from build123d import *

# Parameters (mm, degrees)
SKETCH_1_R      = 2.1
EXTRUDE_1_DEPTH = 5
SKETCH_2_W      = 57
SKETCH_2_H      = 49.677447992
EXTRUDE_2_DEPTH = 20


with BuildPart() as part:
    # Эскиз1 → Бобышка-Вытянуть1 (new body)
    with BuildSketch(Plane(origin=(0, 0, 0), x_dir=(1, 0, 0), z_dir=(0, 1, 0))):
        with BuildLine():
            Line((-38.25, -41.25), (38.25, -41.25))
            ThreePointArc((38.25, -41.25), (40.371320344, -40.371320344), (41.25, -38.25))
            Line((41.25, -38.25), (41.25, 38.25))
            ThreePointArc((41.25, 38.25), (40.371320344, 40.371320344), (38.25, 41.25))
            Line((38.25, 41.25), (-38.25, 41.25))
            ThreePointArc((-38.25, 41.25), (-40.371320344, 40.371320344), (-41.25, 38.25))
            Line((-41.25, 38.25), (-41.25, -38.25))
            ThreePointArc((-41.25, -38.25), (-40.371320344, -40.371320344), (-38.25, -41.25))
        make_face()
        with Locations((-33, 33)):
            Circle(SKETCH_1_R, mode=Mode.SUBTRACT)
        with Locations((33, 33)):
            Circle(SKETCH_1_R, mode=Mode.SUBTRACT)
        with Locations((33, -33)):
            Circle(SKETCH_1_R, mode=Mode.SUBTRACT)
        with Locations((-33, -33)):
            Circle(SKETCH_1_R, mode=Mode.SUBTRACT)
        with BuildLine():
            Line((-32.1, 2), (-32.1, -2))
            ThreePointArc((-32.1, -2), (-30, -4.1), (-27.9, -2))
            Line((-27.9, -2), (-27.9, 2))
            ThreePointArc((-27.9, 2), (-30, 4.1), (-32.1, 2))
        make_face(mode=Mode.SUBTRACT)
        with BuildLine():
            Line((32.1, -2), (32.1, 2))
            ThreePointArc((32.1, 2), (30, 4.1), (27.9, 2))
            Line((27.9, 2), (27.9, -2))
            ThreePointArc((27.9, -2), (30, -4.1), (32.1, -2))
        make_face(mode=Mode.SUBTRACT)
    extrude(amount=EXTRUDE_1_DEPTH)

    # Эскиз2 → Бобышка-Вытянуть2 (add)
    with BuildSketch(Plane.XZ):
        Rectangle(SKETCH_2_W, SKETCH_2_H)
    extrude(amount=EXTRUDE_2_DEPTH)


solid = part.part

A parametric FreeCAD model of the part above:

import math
import FreeCAD as App
import Part
import Sketcher

V = App.Vector

doc = App.newDocument("Part")
body = doc.addObject("PartDesign::Body", "Body")

# Sketch on XZ plane
sketch1 = body.newObject("Sketcher::SketchObject", "Sketch")
sketch1.AttachmentSupport = (doc.getObject("XZ_Plane"), [""])
sketch1.MapMode = "FlatFace"
sketch1.addGeometry([
    Part.LineSegment(V(-38.2, 41.2, 0), V(38.2, 41.2, 0)),  # 0
    Part.ArcOfCircle(Part.Circle(V(38.3, 38.3, 0), V(0, 0, 1), 3), math.radians(0), math.radians(90)),  # 1
    Part.LineSegment(V(41.2, 38.2, 0), V(41.2, -38.2, 0)),  # 2
    Part.ArcOfCircle(Part.Circle(V(38.3, -38.3, 0), V(0, 0, 1), 3), math.radians(-90), math.radians(0)),  # 3
    Part.LineSegment(V(38.2, -41.2, 0), V(-38.2, -41.2, 0)),  # 4
    Part.ArcOfCircle(Part.Circle(V(-38.3, -38.3, 0), V(0, 0, 1), 3), math.radians(180), math.radians(270)),  # 5
    Part.LineSegment(V(-41.2, -38.2, 0), V(-41.2, 38.2, 0)),  # 6
    Part.ArcOfCircle(Part.Circle(V(-38.3, 38.3, 0), V(0, 0, 1), 3), math.radians(90), math.radians(180)),  # 7
    Part.Circle(V(-33, 33, 0), V(0, 0, 1), 2.1),  # 8
    Part.Circle(V(33, 33, 0), V(0, 0, 1), 2.1),  # 9
    Part.LineSegment(V(-32.1, 2, 0), V(-32.1, -2, 0)),  # 10
    Part.ArcOfCircle(Part.Circle(V(-30, -2, 0), V(0, 0, 1), 2.1), math.radians(180), math.radians(360)),  # 11
    Part.LineSegment(V(-27.9, -2, 0), V(-27.9, 2, 0)),  # 12
    Part.ArcOfCircle(Part.Circle(V(-30, 2, 0), V(0, 0, 1), 2.1), math.radians(0), math.radians(180)),  # 13
    Part.Circle(V(-33, -33, 0), V(0, 0, 1), 2.1),  # 14
    Part.LineSegment(V(32.1, -2, 0), V(32.1, 2, 0)),  # 15
    Part.ArcOfCircle(Part.Circle(V(30, 2, 0), V(0, 0, 1), 2.1), math.radians(0), math.radians(180)),  # 16
    Part.LineSegment(V(27.9, 2, 0), V(27.9, -2, 0)),  # 17
    Part.ArcOfCircle(Part.Circle(V(30, -2, 0), V(0, 0, 1), 2.1), math.radians(180), math.radians(360)),  # 18
    Part.Circle(V(33, -33, 0), V(0, 0, 1), 2.1),  # 19
], False)
sketch1.addConstraint([
    Sketcher.Constraint("Tangent", 0, 2, 1, 2),
    Sketcher.Constraint("Tangent", 1, 1, 2, 1),
    Sketcher.Constraint("Tangent", 2, 2, 3, 2),
    Sketcher.Constraint("Tangent", 3, 1, 4, 1),
    Sketcher.Constraint("Tangent", 4, 2, 5, 2),
    Sketcher.Constraint("Tangent", 5, 1, 6, 1),
    Sketcher.Constraint("Tangent", 6, 2, 7, 2),
    Sketcher.Constraint("Tangent", 7, 1, 0, 1),
    Sketcher.Constraint("Tangent", 10, 2, 11, 1),
    Sketcher.Constraint("Tangent", 11, 2, 12, 1),
    Sketcher.Constraint("Tangent", 12, 2, 13, 1),
    Sketcher.Constraint("Tangent", 13, 2, 10, 1),
    Sketcher.Constraint("Tangent", 15, 2, 16, 1),
    Sketcher.Constraint("Tangent", 16, 2, 17, 1),
    Sketcher.Constraint("Tangent", 17, 2, 18, 1),
    Sketcher.Constraint("Tangent", 18, 2, 15, 1),
    Sketcher.Constraint("Horizontal", 0),
    Sketcher.Constraint("Vertical", 2),
    Sketcher.Constraint("Horizontal", 4),
    Sketcher.Constraint("Vertical", 6),
    Sketcher.Constraint("Vertical", 10),
    Sketcher.Constraint("Vertical", 12),
    Sketcher.Constraint("Vertical", 15),
    Sketcher.Constraint("Vertical", 17),
    Sketcher.Constraint("Equal", 1, 3),
    Sketcher.Constraint("Equal", 3, 5),
    Sketcher.Constraint("Equal", 5, 7),
    Sketcher.Constraint("Equal", 8, 9),
    Sketcher.Constraint("Equal", 9, 11),
    Sketcher.Constraint("Equal", 13, 14),
    Sketcher.Constraint("Equal", 14, 16),
    Sketcher.Constraint("Equal", 18, 19),
    Sketcher.Constraint("Symmetric", 1, 3, 5, 3, -1, 1),
    Sketcher.Constraint("Symmetric", 9, 3, 14, 3, -1, 1),
    Sketcher.Constraint("Symmetric", 11, 3, 16, 3, -1, 1),
    Sketcher.Constraint("Symmetric", 8, 3, 19, 3, -1, 1),
    Sketcher.Constraint("Symmetric", 8, 3, 9, 3, -2),
    Sketcher.Constraint("Horizontal", 13, 3, 16, 3),
    Sketcher.Constraint("Horizontal", 11, 3, 18, 3),
    Sketcher.Constraint("Equal", 4, 2),
    Sketcher.Constraint("Radius", 1, 3.0),
    Sketcher.Constraint("Diameter", 8, 4.2),
    Sketcher.Constraint("DistanceY", 10, 2, 10, 1, 4.0),
    Sketcher.Constraint("DistanceX", 0, 1, 0, 2, 76.5),
    Sketcher.Constraint("DistanceX", 8, 3, -1, 1, 33.0),
    Sketcher.Constraint("DistanceY", -1, 1, 8, 3, 33.0),
    Sketcher.Constraint("DistanceX", 11, 3, -1, 1, 30.0),
])
pad1 = body.newObject("PartDesign::Pad", "Pad")
pad1.Profile = sketch1
pad1.Length = 5
pad1.Reversed = True

# Sketch on XZ plane
sketch2 = body.newObject("Sketcher::SketchObject", "Sketch001")
sketch2.AttachmentSupport = (doc.getObject("XZ_Plane"), [""])
sketch2.MapMode = "FlatFace"
sketch2.addGeometry([
    Part.LineSegment(V(-28, 25, 0), V(-28, -25, 0)),
    Part.LineSegment(V(-28, -25, 0), V(28, -25, 0)),
    Part.LineSegment(V(28, -25, 0), V(28, 25, 0)),
    Part.LineSegment(V(28, 25, 0), V(-28, 25, 0)),
], False)
sketch2.addConstraint([
    Sketcher.Constraint("Coincident", 0, 2, 1, 1),
    Sketcher.Constraint("Coincident", 1, 2, 2, 1),
    Sketcher.Constraint("Coincident", 2, 2, 3, 1),
    Sketcher.Constraint("Coincident", 3, 2, 0, 1),
    Sketcher.Constraint("Vertical", 0),
    Sketcher.Constraint("Horizontal", 1),
    Sketcher.Constraint("Vertical", 2),
    Sketcher.Constraint("Horizontal", 3),
    Sketcher.Constraint("Symmetric", 0, 2, 2, 2, -1, 1),
    Sketcher.Constraint("DistanceX", 1, 1, 1, 2, 57.0),
    Sketcher.Constraint("DistanceY", 0, 2, 0, 1, 49.677448),
])
pad2 = body.newObject("PartDesign::Pad", "Pad001")
pad2.Profile = sketch2
pad2.Length = 20

doc.recompute()
